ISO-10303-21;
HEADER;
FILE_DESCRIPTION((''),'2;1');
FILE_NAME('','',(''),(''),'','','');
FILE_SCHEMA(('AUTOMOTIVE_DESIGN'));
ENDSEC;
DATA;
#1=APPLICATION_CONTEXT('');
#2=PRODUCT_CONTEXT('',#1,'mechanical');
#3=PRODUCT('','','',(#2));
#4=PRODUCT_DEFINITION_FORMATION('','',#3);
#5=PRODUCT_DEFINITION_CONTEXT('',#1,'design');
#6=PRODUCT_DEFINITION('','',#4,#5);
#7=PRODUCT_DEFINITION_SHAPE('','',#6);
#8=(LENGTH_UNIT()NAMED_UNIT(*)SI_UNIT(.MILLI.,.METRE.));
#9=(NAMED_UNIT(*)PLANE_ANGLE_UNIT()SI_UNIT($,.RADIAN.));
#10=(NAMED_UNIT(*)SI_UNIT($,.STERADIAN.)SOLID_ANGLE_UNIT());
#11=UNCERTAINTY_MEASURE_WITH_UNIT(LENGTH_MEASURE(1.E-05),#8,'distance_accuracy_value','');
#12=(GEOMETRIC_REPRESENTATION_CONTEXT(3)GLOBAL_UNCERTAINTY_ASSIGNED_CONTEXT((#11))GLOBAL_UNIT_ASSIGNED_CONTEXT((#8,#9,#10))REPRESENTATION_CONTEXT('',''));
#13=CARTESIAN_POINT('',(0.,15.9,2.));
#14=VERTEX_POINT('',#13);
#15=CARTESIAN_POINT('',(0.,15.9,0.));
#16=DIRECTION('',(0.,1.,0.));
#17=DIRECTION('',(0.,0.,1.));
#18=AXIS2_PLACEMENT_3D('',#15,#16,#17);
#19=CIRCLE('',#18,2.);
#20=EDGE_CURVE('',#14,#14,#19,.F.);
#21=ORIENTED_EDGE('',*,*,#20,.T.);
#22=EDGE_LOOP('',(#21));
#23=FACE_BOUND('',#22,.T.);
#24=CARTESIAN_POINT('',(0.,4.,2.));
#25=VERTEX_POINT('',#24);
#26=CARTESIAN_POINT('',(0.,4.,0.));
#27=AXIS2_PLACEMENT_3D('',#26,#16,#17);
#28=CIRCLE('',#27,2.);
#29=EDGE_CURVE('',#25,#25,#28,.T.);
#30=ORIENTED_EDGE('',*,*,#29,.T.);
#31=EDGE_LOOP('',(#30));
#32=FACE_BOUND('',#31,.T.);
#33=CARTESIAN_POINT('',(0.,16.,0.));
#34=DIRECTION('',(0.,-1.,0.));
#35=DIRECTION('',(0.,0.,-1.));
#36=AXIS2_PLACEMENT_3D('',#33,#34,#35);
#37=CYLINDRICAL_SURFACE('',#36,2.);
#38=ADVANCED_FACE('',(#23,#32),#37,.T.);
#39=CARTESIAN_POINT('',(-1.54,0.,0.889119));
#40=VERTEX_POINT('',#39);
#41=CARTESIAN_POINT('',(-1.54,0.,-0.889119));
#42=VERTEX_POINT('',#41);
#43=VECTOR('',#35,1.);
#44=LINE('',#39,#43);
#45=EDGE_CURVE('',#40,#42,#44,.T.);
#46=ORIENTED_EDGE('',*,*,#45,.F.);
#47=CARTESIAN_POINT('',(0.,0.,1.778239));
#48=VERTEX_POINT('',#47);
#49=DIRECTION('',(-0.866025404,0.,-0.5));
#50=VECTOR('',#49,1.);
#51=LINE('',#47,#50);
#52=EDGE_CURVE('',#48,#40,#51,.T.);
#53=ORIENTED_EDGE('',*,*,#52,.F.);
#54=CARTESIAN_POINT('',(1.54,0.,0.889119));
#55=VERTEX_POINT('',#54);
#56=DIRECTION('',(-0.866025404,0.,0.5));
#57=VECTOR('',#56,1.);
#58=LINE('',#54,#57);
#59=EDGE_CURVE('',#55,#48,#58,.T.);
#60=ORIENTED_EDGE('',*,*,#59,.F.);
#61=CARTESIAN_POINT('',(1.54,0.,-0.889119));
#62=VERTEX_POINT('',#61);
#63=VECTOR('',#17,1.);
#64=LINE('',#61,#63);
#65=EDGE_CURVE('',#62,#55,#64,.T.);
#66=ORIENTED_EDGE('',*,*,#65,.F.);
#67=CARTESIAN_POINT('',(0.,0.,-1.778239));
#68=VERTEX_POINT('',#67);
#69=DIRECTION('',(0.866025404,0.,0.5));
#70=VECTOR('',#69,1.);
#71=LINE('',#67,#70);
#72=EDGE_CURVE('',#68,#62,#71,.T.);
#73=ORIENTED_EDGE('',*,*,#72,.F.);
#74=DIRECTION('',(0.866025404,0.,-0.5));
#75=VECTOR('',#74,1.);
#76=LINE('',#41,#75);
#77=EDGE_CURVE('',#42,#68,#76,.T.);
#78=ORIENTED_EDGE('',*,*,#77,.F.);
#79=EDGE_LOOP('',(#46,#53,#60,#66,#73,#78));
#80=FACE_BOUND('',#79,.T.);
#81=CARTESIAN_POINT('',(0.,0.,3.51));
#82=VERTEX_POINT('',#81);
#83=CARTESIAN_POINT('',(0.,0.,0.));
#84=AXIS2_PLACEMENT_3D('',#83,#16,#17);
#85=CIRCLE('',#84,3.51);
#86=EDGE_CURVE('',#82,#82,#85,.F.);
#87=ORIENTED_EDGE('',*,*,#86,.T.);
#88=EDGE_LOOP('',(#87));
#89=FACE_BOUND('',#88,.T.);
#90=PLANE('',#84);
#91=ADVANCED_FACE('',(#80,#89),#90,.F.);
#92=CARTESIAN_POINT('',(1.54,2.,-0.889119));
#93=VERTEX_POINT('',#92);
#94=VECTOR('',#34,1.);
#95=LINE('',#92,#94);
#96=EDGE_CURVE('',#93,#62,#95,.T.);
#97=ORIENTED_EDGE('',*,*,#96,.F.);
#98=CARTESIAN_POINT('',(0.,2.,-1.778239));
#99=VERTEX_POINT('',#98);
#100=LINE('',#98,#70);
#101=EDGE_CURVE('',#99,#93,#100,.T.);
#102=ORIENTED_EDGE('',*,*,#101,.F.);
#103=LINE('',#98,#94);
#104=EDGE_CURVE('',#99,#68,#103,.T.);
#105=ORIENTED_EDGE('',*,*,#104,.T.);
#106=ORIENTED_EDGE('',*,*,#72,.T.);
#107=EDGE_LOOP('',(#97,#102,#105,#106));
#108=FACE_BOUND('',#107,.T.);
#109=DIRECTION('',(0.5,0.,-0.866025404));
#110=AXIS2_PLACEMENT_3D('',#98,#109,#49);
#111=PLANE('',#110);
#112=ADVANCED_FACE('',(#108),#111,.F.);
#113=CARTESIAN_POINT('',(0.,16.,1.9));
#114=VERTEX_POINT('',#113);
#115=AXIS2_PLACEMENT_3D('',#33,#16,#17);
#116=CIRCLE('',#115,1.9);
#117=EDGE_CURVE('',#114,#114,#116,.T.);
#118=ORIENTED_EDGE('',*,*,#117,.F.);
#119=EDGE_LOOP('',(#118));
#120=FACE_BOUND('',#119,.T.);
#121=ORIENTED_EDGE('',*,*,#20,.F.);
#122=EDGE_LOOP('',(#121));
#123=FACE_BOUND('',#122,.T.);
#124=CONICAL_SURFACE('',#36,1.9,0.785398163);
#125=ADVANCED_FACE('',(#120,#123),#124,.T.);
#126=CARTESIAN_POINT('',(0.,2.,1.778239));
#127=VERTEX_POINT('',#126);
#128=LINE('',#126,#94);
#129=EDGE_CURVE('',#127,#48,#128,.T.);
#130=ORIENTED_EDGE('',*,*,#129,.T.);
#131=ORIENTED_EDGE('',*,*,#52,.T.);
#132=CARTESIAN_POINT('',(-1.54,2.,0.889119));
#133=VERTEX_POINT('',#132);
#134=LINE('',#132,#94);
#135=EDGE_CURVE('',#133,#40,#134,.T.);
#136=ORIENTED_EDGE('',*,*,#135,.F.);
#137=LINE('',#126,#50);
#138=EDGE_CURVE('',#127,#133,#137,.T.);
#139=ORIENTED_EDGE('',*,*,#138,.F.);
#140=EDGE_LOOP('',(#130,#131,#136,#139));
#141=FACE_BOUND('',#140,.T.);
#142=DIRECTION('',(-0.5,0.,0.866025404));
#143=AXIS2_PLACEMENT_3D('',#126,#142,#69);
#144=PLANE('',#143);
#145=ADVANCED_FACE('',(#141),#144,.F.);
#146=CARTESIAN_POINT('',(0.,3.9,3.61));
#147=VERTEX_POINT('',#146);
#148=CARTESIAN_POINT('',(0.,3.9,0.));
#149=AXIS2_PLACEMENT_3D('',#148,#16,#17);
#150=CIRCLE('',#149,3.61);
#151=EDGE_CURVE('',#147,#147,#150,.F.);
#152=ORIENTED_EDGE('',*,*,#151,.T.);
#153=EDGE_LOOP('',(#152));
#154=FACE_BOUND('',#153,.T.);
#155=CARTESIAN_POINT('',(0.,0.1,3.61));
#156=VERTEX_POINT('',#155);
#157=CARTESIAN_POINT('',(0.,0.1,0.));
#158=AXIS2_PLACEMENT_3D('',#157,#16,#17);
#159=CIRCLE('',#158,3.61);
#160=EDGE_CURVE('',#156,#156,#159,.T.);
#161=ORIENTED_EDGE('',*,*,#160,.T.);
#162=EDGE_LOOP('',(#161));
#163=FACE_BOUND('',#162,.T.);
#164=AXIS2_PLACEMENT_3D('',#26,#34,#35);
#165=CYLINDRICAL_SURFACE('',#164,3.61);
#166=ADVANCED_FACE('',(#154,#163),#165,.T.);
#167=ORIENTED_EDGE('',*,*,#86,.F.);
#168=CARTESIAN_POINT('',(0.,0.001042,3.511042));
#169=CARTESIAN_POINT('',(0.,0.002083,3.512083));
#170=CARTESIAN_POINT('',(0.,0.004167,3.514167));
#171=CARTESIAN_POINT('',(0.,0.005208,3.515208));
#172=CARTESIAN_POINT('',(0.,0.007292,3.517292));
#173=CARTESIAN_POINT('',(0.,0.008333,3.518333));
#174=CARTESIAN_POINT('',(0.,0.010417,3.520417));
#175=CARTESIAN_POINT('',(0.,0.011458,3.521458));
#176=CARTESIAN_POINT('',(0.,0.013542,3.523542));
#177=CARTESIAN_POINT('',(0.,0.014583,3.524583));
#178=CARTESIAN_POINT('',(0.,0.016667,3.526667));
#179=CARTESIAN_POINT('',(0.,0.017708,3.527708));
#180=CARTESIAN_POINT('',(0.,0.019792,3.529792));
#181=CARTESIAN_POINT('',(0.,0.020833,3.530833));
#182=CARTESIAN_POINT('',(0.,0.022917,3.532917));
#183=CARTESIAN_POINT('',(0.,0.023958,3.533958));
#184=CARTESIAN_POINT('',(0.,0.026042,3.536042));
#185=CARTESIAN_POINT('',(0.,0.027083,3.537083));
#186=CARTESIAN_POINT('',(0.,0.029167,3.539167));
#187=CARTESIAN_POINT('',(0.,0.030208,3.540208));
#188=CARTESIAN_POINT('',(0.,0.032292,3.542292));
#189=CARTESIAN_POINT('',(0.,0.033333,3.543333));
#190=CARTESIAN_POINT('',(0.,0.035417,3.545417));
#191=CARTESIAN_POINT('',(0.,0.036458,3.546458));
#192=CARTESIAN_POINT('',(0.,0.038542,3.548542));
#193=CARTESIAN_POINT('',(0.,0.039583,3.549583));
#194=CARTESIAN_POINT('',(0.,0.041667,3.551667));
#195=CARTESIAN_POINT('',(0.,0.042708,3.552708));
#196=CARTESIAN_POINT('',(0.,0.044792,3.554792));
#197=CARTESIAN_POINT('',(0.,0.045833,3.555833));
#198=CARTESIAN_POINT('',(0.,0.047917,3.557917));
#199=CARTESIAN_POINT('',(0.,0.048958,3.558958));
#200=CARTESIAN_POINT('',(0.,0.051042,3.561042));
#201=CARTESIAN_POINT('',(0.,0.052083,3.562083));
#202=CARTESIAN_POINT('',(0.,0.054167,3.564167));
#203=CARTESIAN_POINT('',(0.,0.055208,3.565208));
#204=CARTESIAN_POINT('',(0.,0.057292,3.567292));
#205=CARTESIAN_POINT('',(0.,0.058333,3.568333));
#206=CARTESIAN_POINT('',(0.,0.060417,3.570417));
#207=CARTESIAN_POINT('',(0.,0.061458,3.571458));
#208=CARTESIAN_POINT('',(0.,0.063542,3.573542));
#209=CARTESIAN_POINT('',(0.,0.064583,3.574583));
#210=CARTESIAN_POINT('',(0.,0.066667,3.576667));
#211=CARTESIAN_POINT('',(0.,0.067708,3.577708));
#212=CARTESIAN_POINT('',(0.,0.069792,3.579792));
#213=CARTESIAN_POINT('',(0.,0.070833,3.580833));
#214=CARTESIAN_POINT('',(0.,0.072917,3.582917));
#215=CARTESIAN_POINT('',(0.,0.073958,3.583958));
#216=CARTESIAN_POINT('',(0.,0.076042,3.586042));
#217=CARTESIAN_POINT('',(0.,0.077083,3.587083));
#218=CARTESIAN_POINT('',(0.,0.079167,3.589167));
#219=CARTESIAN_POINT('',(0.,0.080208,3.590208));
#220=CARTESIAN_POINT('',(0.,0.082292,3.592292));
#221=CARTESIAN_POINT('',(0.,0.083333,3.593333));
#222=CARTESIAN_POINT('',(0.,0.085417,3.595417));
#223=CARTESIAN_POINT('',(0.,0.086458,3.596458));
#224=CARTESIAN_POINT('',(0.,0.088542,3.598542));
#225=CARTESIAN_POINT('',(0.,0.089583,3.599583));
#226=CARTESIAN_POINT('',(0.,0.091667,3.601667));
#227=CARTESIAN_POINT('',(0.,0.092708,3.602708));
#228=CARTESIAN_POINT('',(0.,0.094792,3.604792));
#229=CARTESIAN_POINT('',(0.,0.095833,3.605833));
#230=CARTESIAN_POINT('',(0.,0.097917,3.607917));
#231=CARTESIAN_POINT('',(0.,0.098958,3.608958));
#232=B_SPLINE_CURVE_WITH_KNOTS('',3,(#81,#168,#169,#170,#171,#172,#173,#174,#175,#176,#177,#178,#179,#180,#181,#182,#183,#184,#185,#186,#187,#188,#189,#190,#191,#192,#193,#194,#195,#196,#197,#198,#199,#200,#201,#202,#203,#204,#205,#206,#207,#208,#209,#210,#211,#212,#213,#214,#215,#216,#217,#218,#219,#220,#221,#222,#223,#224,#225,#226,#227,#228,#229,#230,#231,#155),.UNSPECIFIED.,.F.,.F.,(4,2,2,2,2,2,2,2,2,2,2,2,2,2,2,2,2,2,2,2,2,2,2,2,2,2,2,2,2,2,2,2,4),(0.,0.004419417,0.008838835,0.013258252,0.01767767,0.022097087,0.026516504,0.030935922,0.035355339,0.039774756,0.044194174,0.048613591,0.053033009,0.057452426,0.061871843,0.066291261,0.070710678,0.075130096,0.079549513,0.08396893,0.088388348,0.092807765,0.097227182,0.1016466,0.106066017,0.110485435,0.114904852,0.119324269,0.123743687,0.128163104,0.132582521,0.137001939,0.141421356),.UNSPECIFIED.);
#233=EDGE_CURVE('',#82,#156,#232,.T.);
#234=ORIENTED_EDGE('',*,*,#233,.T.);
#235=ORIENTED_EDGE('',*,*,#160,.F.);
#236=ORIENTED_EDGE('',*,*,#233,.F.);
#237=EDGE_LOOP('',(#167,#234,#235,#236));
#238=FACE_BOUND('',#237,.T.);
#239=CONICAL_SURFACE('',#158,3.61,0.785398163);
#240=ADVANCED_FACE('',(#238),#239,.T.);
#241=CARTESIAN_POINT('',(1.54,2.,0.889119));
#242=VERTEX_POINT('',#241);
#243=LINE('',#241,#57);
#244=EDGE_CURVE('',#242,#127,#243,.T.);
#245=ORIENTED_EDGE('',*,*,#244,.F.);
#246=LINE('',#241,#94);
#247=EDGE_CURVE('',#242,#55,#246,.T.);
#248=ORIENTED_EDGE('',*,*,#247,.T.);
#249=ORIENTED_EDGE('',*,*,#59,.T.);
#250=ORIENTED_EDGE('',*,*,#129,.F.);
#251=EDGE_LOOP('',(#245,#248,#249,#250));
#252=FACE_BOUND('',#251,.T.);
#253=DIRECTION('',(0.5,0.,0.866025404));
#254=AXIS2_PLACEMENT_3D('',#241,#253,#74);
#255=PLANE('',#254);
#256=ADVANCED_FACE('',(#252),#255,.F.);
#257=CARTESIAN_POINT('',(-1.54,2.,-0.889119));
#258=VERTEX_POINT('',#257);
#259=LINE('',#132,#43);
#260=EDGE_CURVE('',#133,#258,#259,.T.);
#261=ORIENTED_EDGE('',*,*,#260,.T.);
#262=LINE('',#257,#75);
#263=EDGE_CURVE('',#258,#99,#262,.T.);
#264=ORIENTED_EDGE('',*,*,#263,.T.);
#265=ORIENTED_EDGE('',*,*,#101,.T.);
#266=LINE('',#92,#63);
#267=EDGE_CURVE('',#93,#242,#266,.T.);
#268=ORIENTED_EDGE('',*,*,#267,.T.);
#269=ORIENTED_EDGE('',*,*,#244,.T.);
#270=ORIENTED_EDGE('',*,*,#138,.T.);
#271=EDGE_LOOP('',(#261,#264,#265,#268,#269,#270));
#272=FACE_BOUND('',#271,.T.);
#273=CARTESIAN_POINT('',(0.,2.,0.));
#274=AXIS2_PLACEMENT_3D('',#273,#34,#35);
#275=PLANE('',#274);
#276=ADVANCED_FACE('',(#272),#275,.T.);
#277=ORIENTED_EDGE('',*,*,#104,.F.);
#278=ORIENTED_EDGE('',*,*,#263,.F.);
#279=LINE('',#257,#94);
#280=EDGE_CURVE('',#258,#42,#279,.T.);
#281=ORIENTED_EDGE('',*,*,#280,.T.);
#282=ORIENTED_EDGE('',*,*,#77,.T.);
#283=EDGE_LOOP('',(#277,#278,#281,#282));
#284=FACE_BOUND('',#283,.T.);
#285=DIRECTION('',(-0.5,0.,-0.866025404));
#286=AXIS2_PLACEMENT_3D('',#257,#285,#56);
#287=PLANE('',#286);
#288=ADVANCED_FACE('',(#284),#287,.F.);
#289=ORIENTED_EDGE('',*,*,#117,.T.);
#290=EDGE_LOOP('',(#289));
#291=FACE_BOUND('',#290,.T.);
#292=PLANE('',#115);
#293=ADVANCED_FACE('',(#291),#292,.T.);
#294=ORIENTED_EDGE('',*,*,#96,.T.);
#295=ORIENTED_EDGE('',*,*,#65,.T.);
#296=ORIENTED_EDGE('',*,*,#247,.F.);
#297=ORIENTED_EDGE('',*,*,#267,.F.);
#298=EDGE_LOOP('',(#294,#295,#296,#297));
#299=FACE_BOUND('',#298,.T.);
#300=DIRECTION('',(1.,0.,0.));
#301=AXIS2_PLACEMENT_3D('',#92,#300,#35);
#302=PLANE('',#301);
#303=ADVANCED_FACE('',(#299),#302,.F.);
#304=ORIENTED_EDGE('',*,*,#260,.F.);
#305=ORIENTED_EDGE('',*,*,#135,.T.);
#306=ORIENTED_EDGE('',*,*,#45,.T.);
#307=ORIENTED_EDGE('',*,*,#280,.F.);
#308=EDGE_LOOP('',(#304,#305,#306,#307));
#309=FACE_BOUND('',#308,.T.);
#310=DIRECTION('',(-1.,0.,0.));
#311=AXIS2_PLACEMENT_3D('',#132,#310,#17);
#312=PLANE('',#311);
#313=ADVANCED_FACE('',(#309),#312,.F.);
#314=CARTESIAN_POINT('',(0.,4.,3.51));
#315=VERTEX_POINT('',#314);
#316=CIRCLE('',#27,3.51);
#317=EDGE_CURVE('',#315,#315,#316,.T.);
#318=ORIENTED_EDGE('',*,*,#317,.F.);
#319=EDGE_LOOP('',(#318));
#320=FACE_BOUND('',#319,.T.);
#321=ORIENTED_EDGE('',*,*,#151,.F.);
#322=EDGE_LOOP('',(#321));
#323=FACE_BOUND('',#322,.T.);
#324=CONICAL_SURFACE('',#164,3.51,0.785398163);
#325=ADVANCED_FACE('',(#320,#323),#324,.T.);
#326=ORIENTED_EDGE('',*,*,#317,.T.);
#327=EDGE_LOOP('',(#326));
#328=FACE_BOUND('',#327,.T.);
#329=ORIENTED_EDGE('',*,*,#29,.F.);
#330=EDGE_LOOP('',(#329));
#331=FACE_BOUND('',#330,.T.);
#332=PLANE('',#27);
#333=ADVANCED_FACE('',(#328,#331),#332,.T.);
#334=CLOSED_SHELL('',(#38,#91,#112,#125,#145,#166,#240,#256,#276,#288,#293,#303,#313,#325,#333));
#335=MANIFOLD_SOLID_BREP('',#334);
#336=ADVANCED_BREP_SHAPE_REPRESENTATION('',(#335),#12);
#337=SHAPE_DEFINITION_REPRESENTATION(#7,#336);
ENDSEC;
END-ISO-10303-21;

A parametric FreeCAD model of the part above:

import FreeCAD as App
import Part
import Sketcher

V = App.Vector
Q = App.Units.Quantity


def edges_at(feature, points):
    """Names of the edges that pass closest to the given points."""
    edges = feature.Shape.Edges
    near = lambda p: min(range(len(edges)), key=lambda i: edges[i].distToShape(Part.Vertex(*p))[0])
    return sorted({f"Edge{near(p) + 1}" for p in points})

doc = App.newDocument("Part")
body = doc.addObject("PartDesign::Body", "Body")

# Sketch on XZ plane
sketch1 = body.newObject("Sketcher::SketchObject", "Sketch")
sketch1.AttachmentSupport = (doc.getObject("XZ_Plane"), [""])
sketch1.MapMode = "FlatFace"
sketch1.addGeometry(Part.Circle(V(0, 0, 0), V(0, 0, 1), 3.6), False)
sketch1.addConstraint(Sketcher.Constraint("Coincident", 0, 3, -1, 1))
sketch1.addConstraint(Sketcher.Constraint("Diameter", 0, 7.22))
pad1 = body.newObject("PartDesign::Pad", "Pad")
pad1.Profile = sketch1
pad1.Length = 4
pad1.Reversed = True

# Sketch on XZ plane
sketch2 = body.newObject("Sketcher::SketchObject", "Sketch001")
sketch2.AttachmentSupport = (doc.getObject("XZ_Plane"), [""])
sketch2.MapMode = "FlatFace"
sketch2.AttachmentOffset = App.Placement(V(0, 0, -4), App.Rotation())
sketch2.addGeometry(Part.Circle(V(0, 0, 0), V(0, 0, 1), 2), False)
sketch2.addConstraint(Sketcher.Constraint("Coincident", 0, 3, -1, 1))
sketch2.addConstraint(Sketcher.Constraint("Diameter", 0, 4.0))
pad2 = body.newObject("PartDesign::Pad", "Pad001")
pad2.Profile = sketch2
pad2.Length = 12
pad2.Reversed = True

# Sketch on XZ plane
sketch3 = body.newObject("Sketcher::SketchObject", "Sketch002")
sketch3.AttachmentSupport = (doc.getObject("XZ_Plane"), [""])
sketch3.MapMode = "FlatFace"
sketch3.addGeometry(Part.LineSegment(V(1.5, -0.9, 0), V(1.5, 0.9, 0)), False)
sketch3.addGeometry(Part.LineSegment(V(1.5, 0.9, 0), V(0, 1.8, 0)), False)
sketch3.addGeometry(Part.LineSegment(V(0, 1.8, 0), V(-1.5, 0.9, 0)), False)
sketch3.addGeometry(Part.LineSegment(V(-1.5, 0.9, 0), V(-1.5, -0.9, 0)), False)
sketch3.addGeometry(Part.LineSegment(V(-1.5, -0.9, 0), V(0, -1.8, 0)), False)
sketch3.addGeometry(Part.LineSegment(V(0, -1.8, 0), V(1.5, -0.9, 0)), False)
sketch3.addConstraint(Sketcher.Constraint("Coincident", 0, 2, 1, 1))
sketch3.addConstraint(Sketcher.Constraint("Coincident", 1, 2, 2, 1))
sketch3.addConstraint(Sketcher.Constraint("Coincident", 2, 2, 3, 1))
sketch3.addConstraint(Sketcher.Constraint("Coincident", 3, 2, 4, 1))
sketch3.addConstraint(Sketcher.Constraint("Coincident", 4, 2, 5, 1))
sketch3.addConstraint(Sketcher.Constraint("Coincident", 5, 2, 0, 1))
sketch3.addConstraint(Sketcher.Constraint("Vertical", 0))
sketch3.addConstraint(Sketcher.Constraint("Vertical", 3))
sketch3.addConstraint(Sketcher.Constraint("Symmetric", 0, 2, 3, 2, -1, 1))
sketch3.addConstraint(Sketcher.Constraint("Symmetric", 1, 2, 4, 2, -1, 1))
sketch3.addConstraint(Sketcher.Constraint("PointOnObject", 1, 2, -2))
sketch3.addConstraint(Sketcher.Constraint("Parallel", 2, 5))
sketch3.addConstraint(Sketcher.Constraint("Horizontal", 0, 2, 2, 2))
sketch3.addConstraint(Sketcher.Constraint("Angle", 1, Q("150 deg")))
sketch3.addConstraint(Sketcher.Constraint("DistanceX", -1, 1, 0, 2, 1.54))
sketch3.addConstraint(Sketcher.Constraint("DistanceY", 0, 1, 0, 2, 1.778239))
pocket1 = body.newObject("PartDesign::Pocket", "Pocket")
pocket1.Profile = sketch3
pocket1.Length = 2
doc.recompute()

chamfer = body.newObject("PartDesign::Chamfer", "Chamfer")
chamfer.Base = (pocket1, edges_at(pocket1, [(0, 0, -3.61), (0, 4, -3.61), (0, 16, -2)]))
chamfer.Size = 0.1

doc.recompute()
